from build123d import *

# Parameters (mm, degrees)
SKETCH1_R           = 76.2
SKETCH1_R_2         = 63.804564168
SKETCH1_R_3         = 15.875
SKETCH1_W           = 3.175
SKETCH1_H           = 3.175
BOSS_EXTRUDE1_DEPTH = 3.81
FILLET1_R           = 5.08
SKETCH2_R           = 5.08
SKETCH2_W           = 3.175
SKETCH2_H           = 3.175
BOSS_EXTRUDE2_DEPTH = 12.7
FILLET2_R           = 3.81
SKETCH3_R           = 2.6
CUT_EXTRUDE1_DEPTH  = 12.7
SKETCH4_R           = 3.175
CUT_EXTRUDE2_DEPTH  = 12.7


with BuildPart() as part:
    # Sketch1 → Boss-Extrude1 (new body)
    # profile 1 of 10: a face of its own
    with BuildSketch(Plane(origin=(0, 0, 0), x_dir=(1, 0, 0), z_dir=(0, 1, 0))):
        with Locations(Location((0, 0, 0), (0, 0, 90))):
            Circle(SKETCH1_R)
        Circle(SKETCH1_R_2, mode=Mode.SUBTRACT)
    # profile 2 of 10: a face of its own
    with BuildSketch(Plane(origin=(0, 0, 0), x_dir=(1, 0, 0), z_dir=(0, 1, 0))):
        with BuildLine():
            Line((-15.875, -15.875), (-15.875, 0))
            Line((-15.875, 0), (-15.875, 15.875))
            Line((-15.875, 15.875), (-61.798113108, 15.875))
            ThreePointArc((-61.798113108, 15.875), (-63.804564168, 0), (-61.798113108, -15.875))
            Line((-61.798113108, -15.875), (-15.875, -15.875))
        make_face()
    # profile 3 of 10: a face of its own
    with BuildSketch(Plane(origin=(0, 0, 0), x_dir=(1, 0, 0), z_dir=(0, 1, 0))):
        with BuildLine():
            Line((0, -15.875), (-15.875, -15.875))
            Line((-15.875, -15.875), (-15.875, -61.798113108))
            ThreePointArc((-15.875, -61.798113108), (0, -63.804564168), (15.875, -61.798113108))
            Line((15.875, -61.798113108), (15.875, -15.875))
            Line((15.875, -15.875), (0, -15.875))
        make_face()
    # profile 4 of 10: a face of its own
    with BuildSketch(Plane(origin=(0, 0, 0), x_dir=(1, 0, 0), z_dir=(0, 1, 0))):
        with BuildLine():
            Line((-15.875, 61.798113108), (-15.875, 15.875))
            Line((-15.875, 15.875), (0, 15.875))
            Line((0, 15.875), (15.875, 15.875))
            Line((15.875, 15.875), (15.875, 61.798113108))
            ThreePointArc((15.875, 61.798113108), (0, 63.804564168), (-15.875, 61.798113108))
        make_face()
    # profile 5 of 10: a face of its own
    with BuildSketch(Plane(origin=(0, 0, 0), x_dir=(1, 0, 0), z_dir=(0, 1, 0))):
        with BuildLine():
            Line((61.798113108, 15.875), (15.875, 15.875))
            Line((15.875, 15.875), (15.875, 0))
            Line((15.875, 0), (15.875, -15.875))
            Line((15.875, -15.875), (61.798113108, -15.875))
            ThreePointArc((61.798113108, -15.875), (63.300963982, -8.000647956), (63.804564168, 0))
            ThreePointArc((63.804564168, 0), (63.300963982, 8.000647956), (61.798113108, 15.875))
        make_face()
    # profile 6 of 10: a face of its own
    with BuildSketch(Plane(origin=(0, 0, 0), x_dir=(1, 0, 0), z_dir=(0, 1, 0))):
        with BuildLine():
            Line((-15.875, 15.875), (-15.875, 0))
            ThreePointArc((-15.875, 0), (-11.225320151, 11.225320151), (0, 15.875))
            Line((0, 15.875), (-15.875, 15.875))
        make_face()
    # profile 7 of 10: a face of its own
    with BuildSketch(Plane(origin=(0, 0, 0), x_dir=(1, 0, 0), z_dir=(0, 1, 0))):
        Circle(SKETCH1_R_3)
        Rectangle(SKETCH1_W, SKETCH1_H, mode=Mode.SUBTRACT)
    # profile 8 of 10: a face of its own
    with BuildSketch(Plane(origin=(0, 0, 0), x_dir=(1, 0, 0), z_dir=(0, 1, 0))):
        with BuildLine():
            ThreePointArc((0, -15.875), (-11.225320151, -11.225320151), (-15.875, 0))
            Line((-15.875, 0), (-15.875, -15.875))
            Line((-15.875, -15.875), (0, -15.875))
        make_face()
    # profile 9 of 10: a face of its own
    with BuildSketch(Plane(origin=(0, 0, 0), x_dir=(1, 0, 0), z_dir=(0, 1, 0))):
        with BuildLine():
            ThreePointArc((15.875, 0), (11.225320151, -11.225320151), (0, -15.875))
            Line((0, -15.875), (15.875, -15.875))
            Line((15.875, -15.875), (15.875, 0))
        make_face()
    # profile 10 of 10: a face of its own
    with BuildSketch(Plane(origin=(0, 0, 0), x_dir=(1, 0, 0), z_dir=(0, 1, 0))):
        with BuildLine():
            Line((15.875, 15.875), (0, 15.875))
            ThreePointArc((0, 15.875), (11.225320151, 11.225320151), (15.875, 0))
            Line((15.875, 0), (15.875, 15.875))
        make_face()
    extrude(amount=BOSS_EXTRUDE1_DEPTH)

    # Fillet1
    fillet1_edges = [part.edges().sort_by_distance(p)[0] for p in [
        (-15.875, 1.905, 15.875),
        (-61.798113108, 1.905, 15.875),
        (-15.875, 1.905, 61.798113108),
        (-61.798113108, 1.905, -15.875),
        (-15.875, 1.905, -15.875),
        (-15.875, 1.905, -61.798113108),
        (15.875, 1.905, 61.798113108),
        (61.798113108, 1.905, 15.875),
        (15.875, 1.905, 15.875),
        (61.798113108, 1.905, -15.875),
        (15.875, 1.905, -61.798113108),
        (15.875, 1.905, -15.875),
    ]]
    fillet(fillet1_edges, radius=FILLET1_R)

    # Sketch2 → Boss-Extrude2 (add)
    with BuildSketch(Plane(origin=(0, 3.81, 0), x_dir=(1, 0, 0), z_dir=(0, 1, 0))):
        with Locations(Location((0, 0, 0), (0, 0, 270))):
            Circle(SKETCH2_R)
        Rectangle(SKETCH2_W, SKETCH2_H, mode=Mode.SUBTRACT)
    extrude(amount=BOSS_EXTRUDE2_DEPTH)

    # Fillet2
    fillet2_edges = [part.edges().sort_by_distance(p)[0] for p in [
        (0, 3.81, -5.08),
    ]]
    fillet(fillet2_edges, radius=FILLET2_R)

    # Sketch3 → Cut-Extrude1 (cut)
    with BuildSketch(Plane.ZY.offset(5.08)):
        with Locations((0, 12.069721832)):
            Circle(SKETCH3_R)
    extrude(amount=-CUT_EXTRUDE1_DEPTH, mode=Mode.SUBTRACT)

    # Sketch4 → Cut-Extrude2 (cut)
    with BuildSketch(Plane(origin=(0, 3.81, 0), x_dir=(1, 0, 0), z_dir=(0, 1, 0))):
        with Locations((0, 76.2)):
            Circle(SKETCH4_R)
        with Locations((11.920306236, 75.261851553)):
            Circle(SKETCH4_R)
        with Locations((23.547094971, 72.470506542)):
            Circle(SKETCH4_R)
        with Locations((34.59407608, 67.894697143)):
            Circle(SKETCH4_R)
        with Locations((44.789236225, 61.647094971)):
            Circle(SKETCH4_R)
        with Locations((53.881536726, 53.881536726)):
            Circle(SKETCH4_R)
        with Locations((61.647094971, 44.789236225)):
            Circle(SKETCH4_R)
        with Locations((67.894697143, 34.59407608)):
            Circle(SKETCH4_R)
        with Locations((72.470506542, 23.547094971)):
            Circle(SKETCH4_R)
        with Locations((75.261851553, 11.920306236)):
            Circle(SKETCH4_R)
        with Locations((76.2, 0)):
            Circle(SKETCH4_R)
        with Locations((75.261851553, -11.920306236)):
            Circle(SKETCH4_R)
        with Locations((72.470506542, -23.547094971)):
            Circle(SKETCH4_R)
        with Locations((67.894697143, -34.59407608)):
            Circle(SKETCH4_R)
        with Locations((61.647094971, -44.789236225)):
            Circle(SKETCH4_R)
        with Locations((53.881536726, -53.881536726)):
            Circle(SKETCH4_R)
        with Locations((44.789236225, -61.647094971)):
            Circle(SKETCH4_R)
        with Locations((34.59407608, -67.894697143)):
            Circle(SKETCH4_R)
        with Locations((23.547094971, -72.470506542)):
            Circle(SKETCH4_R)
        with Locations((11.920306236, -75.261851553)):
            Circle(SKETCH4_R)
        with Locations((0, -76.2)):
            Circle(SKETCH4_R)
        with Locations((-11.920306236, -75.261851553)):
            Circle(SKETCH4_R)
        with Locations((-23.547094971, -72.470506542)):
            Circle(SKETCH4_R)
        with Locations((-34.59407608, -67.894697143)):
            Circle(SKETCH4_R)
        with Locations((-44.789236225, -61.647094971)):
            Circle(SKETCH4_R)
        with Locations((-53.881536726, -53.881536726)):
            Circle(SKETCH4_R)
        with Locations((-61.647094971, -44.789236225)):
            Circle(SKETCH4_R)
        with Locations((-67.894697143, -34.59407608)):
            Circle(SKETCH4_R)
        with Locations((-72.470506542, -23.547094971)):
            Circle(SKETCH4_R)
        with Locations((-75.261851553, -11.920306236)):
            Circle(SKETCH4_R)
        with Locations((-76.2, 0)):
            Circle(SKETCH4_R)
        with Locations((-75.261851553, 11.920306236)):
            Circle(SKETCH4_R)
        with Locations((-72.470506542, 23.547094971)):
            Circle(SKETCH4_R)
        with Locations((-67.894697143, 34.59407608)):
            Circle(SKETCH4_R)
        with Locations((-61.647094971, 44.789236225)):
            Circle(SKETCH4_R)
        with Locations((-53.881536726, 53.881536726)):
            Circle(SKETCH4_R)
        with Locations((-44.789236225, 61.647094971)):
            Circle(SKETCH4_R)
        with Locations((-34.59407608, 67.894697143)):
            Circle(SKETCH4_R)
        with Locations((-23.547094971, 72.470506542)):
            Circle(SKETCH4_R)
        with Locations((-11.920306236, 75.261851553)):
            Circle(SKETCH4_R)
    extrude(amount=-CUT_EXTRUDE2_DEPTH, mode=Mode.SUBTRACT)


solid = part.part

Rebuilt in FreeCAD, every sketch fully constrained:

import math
import FreeCAD as App
import Part
import Sketcher
Q = App.Units.Quantity


def edges_at(feature, points):
    """Names of the edges that pass closest to the given points."""
    edges = feature.Shape.Edges
    near = lambda p: min(range(len(edges)), key=lambda i: edges[i].distToShape(Part.Vertex(*p))[0])
    return sorted({f"Edge{near(p) + 1}" for p in points})

doc = App.newDocument("Part")
body = doc.addObject("PartDesign::Body", "Body")

# Sketch on XZ plane
sketch1 = body.newObject("Sketcher::SketchObject", "Sketch")
sketch1.AttachmentSupport = (doc.getObject("XZ_Plane"), [""])
sketch1.MapMode = "FlatFace"
sketch1.addGeometry([
    Part.Circle(App.Vector(0, 0, 0), App.Vector(0, 0, 1), 76.2),  # 0
    Part.ArcOfCircle(Part.Circle(App.Vector(0, 0, 0), App.Vector(0, 0, 1), 63.8), math.radians(-76), math.radians(-14)),  # 1
    Part.LineSegment(App.Vector(61.8, -15.9, 0), App.Vector(15.9, -15.9, 0)),  # 2
    Part.LineSegment(App.Vector(15.9, -15.9, 0), App.Vector(15.9, -61.8, 0)),  # 3
    Part.ArcOfCircle(Part.Circle(App.Vector(0, 0, 0), App.Vector(0, 0, 1), 63.8), math.radians(-166), math.radians(-104)),  # 4
    Part.LineSegment(App.Vector(-15.9, -61.8, 0), App.Vector(-15.9, -15.9, 0)),  # 5
    Part.LineSegment(App.Vector(-15.9, -15.9, 0), App.Vector(-61.8, -15.9, 0)),  # 6
    Part.ArcOfCircle(Part.Circle(App.Vector(0, 0, 0), App.Vector(0, 0, 1), 63.8), math.radians(104), math.radians(166)),  # 7
    Part.LineSegment(App.Vector(-61.8, 15.9, 0), App.Vector(-15.9, 15.9, 0)),  # 8
    Part.LineSegment(App.Vector(-15.9, 15.9, 0), App.Vector(-15.9, 61.8, 0)),  # 9
    Part.ArcOfCircle(Part.Circle(App.Vector(0, 0, 0), App.Vector(0, 0, 1), 63.8), math.radians(14), math.radians(76)),  # 10
    Part.LineSegment(App.Vector(15.9, 61.8, 0), App.Vector(15.9, 15.9, 0)),  # 11
    Part.LineSegment(App.Vector(15.9, 15.9, 0), App.Vector(61.8, 15.9, 0)),  # 12
    Part.LineSegment(App.Vector(-1.6, 1.6, 0), App.Vector(-1.6, -1.6, 0)),  # 13
    Part.LineSegment(App.Vector(-1.6, -1.6, 0), App.Vector(1.6, -1.6, 0)),  # 14
    Part.LineSegment(App.Vector(1.6, -1.6, 0), App.Vector(1.6, 1.6, 0)),  # 15
    Part.LineSegment(App.Vector(1.6, 1.6, 0), App.Vector(-1.6, 1.6, 0)),  # 16
], False)
sketch1.addConstraint([
    Sketcher.Constraint("Coincident", 1, 2, 2, 1),
    Sketcher.Constraint("Coincident", 2, 2, 3, 1),
    Sketcher.Constraint("Coincident", 3, 2, 1, 1),
    Sketcher.Constraint("Coincident", 4, 2, 5, 1),
    Sketcher.Constraint("Coincident", 5, 2, 6, 1),
    Sketcher.Constraint("Coincident", 6, 2, 4, 1),
    Sketcher.Constraint("Coincident", 7, 2, 8, 1),
    Sketcher.Constraint("Coincident", 8, 2, 9, 1),
    Sketcher.Constraint("Coincident", 9, 2, 7, 1),
    Sketcher.Constraint("Coincident", 10, 2, 11, 1),
    Sketcher.Constraint("Coincident", 11, 2, 12, 1),
    Sketcher.Constraint("Coincident", 12, 2, 10, 1),
    Sketcher.Constraint("Coincident", 13, 2, 14, 1),
    Sketcher.Constraint("Coincident", 14, 2, 15, 1),
    Sketcher.Constraint("Coincident", 15, 2, 16, 1),
    Sketcher.Constraint("Coincident", 16, 2, 13, 1),
    Sketcher.Constraint("Horizontal", 2),
    Sketcher.Constraint("Vertical", 3),
    Sketcher.Constraint("Vertical", 5),
    Sketcher.Constraint("Horizontal", 6),
    Sketcher.Constraint("Horizontal", 8),
    Sketcher.Constraint("Vertical", 9),
    Sketcher.Constraint("Vertical", 11),
    Sketcher.Constraint("Horizontal", 12),
    Sketcher.Constraint("Vertical", 13),
    Sketcher.Constraint("Horizontal", 14),
    Sketcher.Constraint("Vertical", 15),
    Sketcher.Constraint("Horizontal", 16),
    Sketcher.Constraint("Coincident", 0, 3, -1, 1),
    Sketcher.Constraint("Coincident", 1, 3, -1, 1),
    Sketcher.Constraint("Coincident", 4, 3, -1, 1),
    Sketcher.Constraint("Coincident", 7, 3, -1, 1),
    Sketcher.Constraint("Coincident", 10, 3, -1, 1),
    Sketcher.Constraint("Equal", 1, 4),
    Sketcher.Constraint("Equal", 4, 7),
    Sketcher.Constraint("Equal", 7, 10),
    Sketcher.Constraint("Symmetric", 2, 2, 8, 2, -1, 1),
    Sketcher.Constraint("Symmetric", 5, 2, 11, 2, -1, 1),
    Sketcher.Constraint("Symmetric", 13, 2, 15, 2, -1, 1),
    Sketcher.Constraint("Symmetric", 2, 2, 5, 2, -2),
    Sketcher.Constraint("Equal", 12, 3),
    Sketcher.Constraint("Equal", 16, 13),
    Sketcher.Constraint("Diameter", 0, Q("6 in")),
    Sketcher.Constraint("DistanceX", 14, 1, 14, 2, Q("0.125 in")),
    Sketcher.Constraint("DistanceX", 4, 2, 3, 2, Q("1.25 in")),
    Sketcher.Constraint("Radius", 1, Q("63.804564 mm")),
])
pad1 = body.newObject("PartDesign::Pad", "Pad")
pad1.Profile = sketch1
pad1.Length = Q("0.15 in")
pad1.Reversed = True
doc.recompute()

fillet = body.newObject("PartDesign::Fillet", "Fillet")
fillet.Base = (pad1, edges_at(pad1, [
    (-15.875, 1.905, 15.875),
    (-61.798, 1.905, 15.875),
    (-15.875, 1.905, 61.798),
    (-61.798, 1.905, -15.875),
    (-15.875, 1.905, -15.875),
    (-15.875, 1.905, -61.798),
    (15.875, 1.905, 61.798),
    (61.798, 1.905, 15.875),
    (15.875, 1.905, 15.875),
    (61.798, 1.905, -15.875),
    (15.875, 1.905, -61.798),
    (15.875, 1.905, -15.875),
]))
fillet.Radius = Q("0.2 in")

# Sketch on XZ plane
sketch2 = body.newObject("Sketcher::SketchObject", "Sketch001")
sketch2.AttachmentSupport = (doc.getObject("XZ_Plane"), [""])
sketch2.MapMode = "FlatFace"
sketch2.AttachmentOffset = App.Placement(App.Vector(0, 0, -0.15 * 25.4), App.Rotation())
sketch2.addGeometry([
    Part.Circle(App.Vector(0, 0, 0), App.Vector(0, 0, 1), 5.1),  # 0
    Part.LineSegment(App.Vector(1.6, 1.6, 0), App.Vector(-1.6, 1.6, 0)),  # 1
    Part.LineSegment(App.Vector(-1.6, 1.6, 0), App.Vector(-1.6, -1.6, 0)),  # 2
    Part.LineSegment(App.Vector(-1.6, -1.6, 0), App.Vector(1.6, -1.6, 0)),  # 3
    Part.LineSegment(App.Vector(1.6, -1.6, 0), App.Vector(1.6, 1.6, 0)),  # 4
], False)
sketch2.addConstraint([
    Sketcher.Constraint("Coincident", 1, 2, 2, 1),
    Sketcher.Constraint("Coincident", 2, 2, 3, 1),
    Sketcher.Constraint("Coincident", 3, 2, 4, 1),
    Sketcher.Constraint("Coincident", 4, 2, 1, 1),
    Sketcher.Constraint("Horizontal", 1),
    Sketcher.Constraint("Vertical", 2),
    Sketcher.Constraint("Horizontal", 3),
    Sketcher.Constraint("Vertical", 4),
    Sketcher.Constraint("Coincident", 0, 3, -1, 1),
    Sketcher.Constraint("Symmetric", 1, 2, 3, 2, -1, 1),
    Sketcher.Constraint("Equal", 3, 2),
    Sketcher.Constraint("Diameter", 0, Q("0.4 in")),
    Sketcher.Constraint("DistanceX", 1, 2, 1, 1, Q("0.125 in")),
])
pad2 = body.newObject("PartDesign::Pad", "Pad001")
pad2.Profile = sketch2
pad2.Length = Q("0.5 in")
pad2.Reversed = True
doc.recompute()

fillet2 = body.newObject("PartDesign::Fillet", "Fillet001")
fillet2.Base = (pad2, edges_at(pad2, [(0, 3.81, -5.08)]))
fillet2.Radius = Q("0.15 in")

# Sketch on YZ plane
sketch3 = body.newObject("Sketcher::SketchObject", "Sketch002")
sketch3.AttachmentSupport = (doc.getObject("YZ_Plane"), [""])
sketch3.MapMode = "FlatFace"
sketch3.AttachmentOffset = App.Placement(App.Vector(0, 0, -0.2 * 25.4), App.Rotation())
sketch3.addGeometry(Part.Circle(App.Vector(12.1, 0, 0), App.Vector(0, 0, 1), 2.6), False)
sketch3.addConstraint([
    Sketcher.Constraint("PointOnObject", 0, 3, -1),
    Sketcher.Constraint("Diameter", 0, Q("5.2 mm")),
    Sketcher.Constraint("DistanceX", -1, 1, 0, 3, Q("12.069722 mm")),
])
pocket1 = body.newObject("PartDesign::Pocket", "Pocket")
pocket1.Profile = sketch3
pocket1.Length = Q("0.5 in")
pocket1.Reversed = True

# Sketch on XZ plane
sketch4 = body.newObject("Sketcher::SketchObject", "Sketch003")
sketch4.AttachmentSupport = (doc.getObject("XZ_Plane"), [""])
sketch4.MapMode = "FlatFace"
sketch4.AttachmentOffset = App.Placement(App.Vector(0, 0, -0.15 * 25.4), App.Rotation())
sketch4.addGeometry([
    Part.Circle(App.Vector(0, -76.2, 0), App.Vector(0, 0, 1), 3.2),  # 0
    Part.Circle(App.Vector(11.9, -75.3, 0), App.Vector(0, 0, 1), 3.2),  # 1
    Part.Circle(App.Vector(23.5, -72.5, 0), App.Vector(0, 0, 1), 3.2),  # 2
    Part.Circle(App.Vector(34.6, -67.9, 0), App.Vector(0, 0, 1), 3.2),  # 3
    Part.Circle(App.Vector(44.8, -61.6, 0), App.Vector(0, 0, 1), 3.2),  # 4
    Part.Circle(App.Vector(53.9, -53.9, 0), App.Vector(0, 0, 1), 3.2),  # 5
    Part.Circle(App.Vector(61.6, -44.8, 0), App.Vector(0, 0, 1), 3.2),  # 6
    Part.Circle(App.Vector(67.9, -34.6, 0), App.Vector(0, 0, 1), 3.2),  # 7
    Part.Circle(App.Vector(72.5, -23.5, 0), App.Vector(0, 0, 1), 3.2),  # 8
    Part.Circle(App.Vector(75.3, -11.9, 0), App.Vector(0, 0, 1), 3.2),  # 9
    Part.Circle(App.Vector(76.2, 0, 0), App.Vector(0, 0, 1), 3.2),  # 10
    Part.Circle(App.Vector(75.3, 11.9, 0), App.Vector(0, 0, 1), 3.2),  # 11
    Part.Circle(App.Vector(72.5, 23.5, 0), App.Vector(0, 0, 1), 3.2),  # 12
    Part.Circle(App.Vector(67.9, 34.6, 0), App.Vector(0, 0, 1), 3.2),  # 13
    Part.Circle(App.Vector(61.6, 44.8, 0), App.Vector(0, 0, 1), 3.2),  # 14
    Part.Circle(App.Vector(53.9, 53.9, 0), App.Vector(0, 0, 1), 3.2),  # 15
    Part.Circle(App.Vector(44.8, 61.6, 0), App.Vector(0, 0, 1), 3.2),  # 16
    Part.Circle(App.Vector(34.6, 67.9, 0), App.Vector(0, 0, 1), 3.2),  # 17
    Part.Circle(App.Vector(23.5, 72.5, 0), App.Vector(0, 0, 1), 3.2),  # 18
    Part.Circle(App.Vector(11.9, 75.3, 0), App.Vector(0, 0, 1), 3.2),  # 19
    Part.Circle(App.Vector(0, 76.2, 0), App.Vector(0, 0, 1), 3.2),  # 20
    Part.Circle(App.Vector(-11.9, 75.3, 0), App.Vector(0, 0, 1), 3.2),  # 21
    Part.Circle(App.Vector(-23.5, 72.5, 0), App.Vector(0, 0, 1), 3.2),  # 22
    Part.Circle(App.Vector(-34.6, 67.9, 0), App.Vector(0, 0, 1), 3.2),  # 23
    Part.Circle(App.Vector(-44.8, 61.6, 0), App.Vector(0, 0, 1), 3.2),  # 24
    Part.Circle(App.Vector(-53.9, 53.9, 0), App.Vector(0, 0, 1), 3.2),  # 25
    Part.Circle(App.Vector(-61.6, 44.8, 0), App.Vector(0, 0, 1), 3.2),  # 26
    Part.Circle(App.Vector(-67.9, 34.6, 0), App.Vector(0, 0, 1), 3.2),  # 27
    Part.Circle(App.Vector(-72.5, 23.5, 0), App.Vector(0, 0, 1), 3.2),  # 28
    Part.Circle(App.Vector(-75.3, 11.9, 0), App.Vector(0, 0, 1), 3.2),  # 29
    Part.Circle(App.Vector(-76.2, 0, 0), App.Vector(0, 0, 1), 3.2),  # 30
    Part.Circle(App.Vector(-75.3, -11.9, 0), App.Vector(0, 0, 1), 3.2),  # 31
    Part.Circle(App.Vector(-72.5, -23.5, 0), App.Vector(0, 0, 1), 3.2),  # 32
    Part.Circle(App.Vector(-67.9, -34.6, 0), App.Vector(0, 0, 1), 3.2),  # 33
    Part.Circle(App.Vector(-61.6, -44.8, 0), App.Vector(0, 0, 1), 3.2),  # 34
    Part.Circle(App.Vector(-53.9, -53.9, 0), App.Vector(0, 0, 1), 3.2),  # 35
    Part.Circle(App.Vector(-44.8, -61.6, 0), App.Vector(0, 0, 1), 3.2),  # 36
    Part.Circle(App.Vector(-34.6, -67.9, 0), App.Vector(0, 0, 1), 3.2),  # 37
    Part.Circle(App.Vector(-23.5, -72.5, 0), App.Vector(0, 0, 1), 3.2),  # 38
    Part.Circle(App.Vector(-11.9, -75.3, 0), App.Vector(0, 0, 1), 3.2),  # 39
], False)
sketch4.addConstraint([
    Sketcher.Constraint("Equal", 0, 1),
    Sketcher.Constraint("Equal", 1, 2),
    Sketcher.Constraint("Equal", 2, 3),
    Sketcher.Constraint("Equal", 3, 4),
    Sketcher.Constraint("Equal", 4, 5),
    Sketcher.Constraint("Equal", 5, 6),
    Sketcher.Constraint("Equal", 6, 7),
    Sketcher.Constraint("Equal", 7, 8),
    Sketcher.Constraint("Equal", 8, 9),
    Sketcher.Constraint("Equal", 9, 10),
    Sketcher.Constraint("Equal", 10, 11),
    Sketcher.Constraint("Equal", 11, 12),
    Sketcher.Constraint("Equal", 12, 13),
    Sketcher.Constraint("Equal", 13, 14),
    Sketcher.Constraint("Equal", 14, 15),
    Sketcher.Constraint("Equal", 15, 16),
    Sketcher.Constraint("Equal", 16, 17),
    Sketcher.Constraint("Equal", 17, 18),
    Sketcher.Constraint("Equal", 18, 19),
    Sketcher.Constraint("Equal", 19, 20),
    Sketcher.Constraint("Equal", 20, 21),
    Sketcher.Constraint("Equal", 21, 22),
    Sketcher.Constraint("Equal", 22, 23),
    Sketcher.Constraint("Equal", 23, 24),
    Sketcher.Constraint("Equal", 24, 25),
    Sketcher.Constraint("Equal", 25, 26),
    Sketcher.Constraint("Equal", 26, 27),
    Sketcher.Constraint("Equal", 27, 28),
    Sketcher.Constraint("Equal", 28, 29),
    Sketcher.Constraint("Equal", 29, 30),
    Sketcher.Constraint("Equal", 30, 31),
    Sketcher.Constraint("Equal", 31, 32),
    Sketcher.Constraint("Equal", 32, 33),
    Sketcher.Constraint("Equal", 33, 34),
    Sketcher.Constraint("Equal", 34, 35),
    Sketcher.Constraint("Equal", 35, 36),
    Sketcher.Constraint("Equal", 36, 37),
    Sketcher.Constraint("Equal", 37, 38),
    Sketcher.Constraint("Equal", 38, 39),
    Sketcher.Constraint("Symmetric", 0, 3, 20, 3, -1, 1),
    Sketcher.Constraint("Symmetric", 1, 3, 21, 3, -1, 1),
    Sketcher.Constraint("Symmetric", 2, 3, 22, 3, -1, 1),
    Sketcher.Constraint("Symmetric", 3, 3, 23, 3, -1, 1),
    Sketcher.Constraint("Symmetric", 4, 3, 24, 3, -1, 1),
    Sketcher.Constraint("Symmetric", 5, 3, 25, 3, -1, 1),
    Sketcher.Constraint("Symmetric", 6, 3, 26, 3, -1, 1),
    Sketcher.Constraint("Symmetric", 7, 3, 27, 3, -1, 1),
    Sketcher.Constraint("Symmetric", 8, 3, 28, 3, -1, 1),
    Sketcher.Constraint("Symmetric", 9, 3, 29, 3, -1, 1),
    Sketcher.Constraint("Symmetric", 10, 3, 30, 3, -1, 1),
    Sketcher.Constraint("Symmetric", 11, 3, 31, 3, -1, 1),
    Sketcher.Constraint("Symmetric", 12, 3, 32, 3, -1, 1),
    Sketcher.Constraint("Symmetric", 13, 3, 33, 3, -1, 1),
    Sketcher.Constraint("Symmetric", 14, 3, 34, 3, -1, 1),
    Sketcher.Constraint("Symmetric", 15, 3, 35, 3, -1, 1),
    Sketcher.Constraint("Symmetric", 16, 3, 36, 3, -1, 1),
    Sketcher.Constraint("Symmetric", 17, 3, 37, 3, -1, 1),
    Sketcher.Constraint("Symmetric", 18, 3, 38, 3, -1, 1),
    Sketcher.Constraint("Symmetric", 19, 3, 39, 3, -1, 1),
    Sketcher.Constraint("Symmetric", 19, 3, 21, 3, -2),
    Sketcher.Constraint("Symmetric", 18, 3, 22, 3, -2),
    Sketcher.Constraint("Symmetric", 17, 3, 23, 3, -2),
    Sketcher.Constraint("Symmetric", 16, 3, 24, 3, -2),
    Sketcher.Constraint("Symmetric", 15, 3, 25, 3, -2),
    Sketcher.Constraint("Symmetric", 14, 3, 26, 3, -2),
    Sketcher.Constraint("Symmetric", 13, 3, 27, 3, -2),
    Sketcher.Constraint("Symmetric", 12, 3, 28, 3, -2),
    Sketcher.Constraint("Symmetric", 11, 3, 29, 3, -2),
    Sketcher.Constraint("PointOnObject", 0, 3, -2),
    Sketcher.Constraint("PointOnObject", 10, 3, -1),
    Sketcher.Constraint("Diameter", 0, Q("0.25 in")),
    Sketcher.Constraint("DistanceY", 0, 3, -1, 1, Q("3 in")),
    Sketcher.Constraint("DistanceX", -1, 1, 10, 3, Q("3 in")),
    Sketcher.Constraint("DistanceX", 2, 3, 6, 3, Q("1.5 in")),
    Sketcher.Constraint("DistanceY", 4, 3, 8, 3, Q("1.5 in")),
    Sketcher.Constraint("DistanceX", 4, 3, 5, 3, Q("9.092301 mm")),
    Sketcher.Constraint("DistanceY", 5, 3, 6, 3, Q("9.092301 mm")),
    Sketcher.Constraint("DistanceY", 8, 3, 11, 3, Q("35.467401 mm")),
    Sketcher.Constraint("DistanceX", 21, 3, 18, 3, Q("35.467401 mm")),
    Sketcher.Constraint("DistanceY", 1, 3, -1, 1, Q("75.261852 mm")),
    Sketcher.Constraint("DistanceX", -1, 1, 9, 3, Q("75.261852 mm")),
    Sketcher.Constraint("DistanceX", 1, 3, 2, 3, Q("11.626789 mm")),
    Sketcher.Constraint("DistanceX", 2, 3, 3, 3, Q("11.046981 mm")),
    Sketcher.Constraint("DistanceY", 2, 3, 3, 3, Q("4.575809 mm")),
    Sketcher.Constraint("DistanceX", 3, 3, 4, 3, Q("10.19516 mm")),
    Sketcher.Constraint("DistanceY", 2, 3, 4, 3, Q("10.823412 mm")),
    Sketcher.Constraint("DistanceY", 4, 3, 5, 3, Q("7.765558 mm")),
    Sketcher.Constraint("DistanceY", 6, 3, 7, 3, Q("10.19516 mm")),
    Sketcher.Constraint("DistanceX", 5, 3, 7, 3, Q("14.01316 mm")),
    Sketcher.Constraint("DistanceX", 7, 3, 8, 3, Q("4.575809 mm")),
    Sketcher.Constraint("DistanceY", 8, 3, 9, 3, Q("11.626789 mm")),
])
pocket2 = body.newObject("PartDesign::Pocket", "Pocket001")
pocket2.Profile = sketch4
pocket2.Length = Q("0.5 in")
pocket2.Reversed = True

doc.recompute()
